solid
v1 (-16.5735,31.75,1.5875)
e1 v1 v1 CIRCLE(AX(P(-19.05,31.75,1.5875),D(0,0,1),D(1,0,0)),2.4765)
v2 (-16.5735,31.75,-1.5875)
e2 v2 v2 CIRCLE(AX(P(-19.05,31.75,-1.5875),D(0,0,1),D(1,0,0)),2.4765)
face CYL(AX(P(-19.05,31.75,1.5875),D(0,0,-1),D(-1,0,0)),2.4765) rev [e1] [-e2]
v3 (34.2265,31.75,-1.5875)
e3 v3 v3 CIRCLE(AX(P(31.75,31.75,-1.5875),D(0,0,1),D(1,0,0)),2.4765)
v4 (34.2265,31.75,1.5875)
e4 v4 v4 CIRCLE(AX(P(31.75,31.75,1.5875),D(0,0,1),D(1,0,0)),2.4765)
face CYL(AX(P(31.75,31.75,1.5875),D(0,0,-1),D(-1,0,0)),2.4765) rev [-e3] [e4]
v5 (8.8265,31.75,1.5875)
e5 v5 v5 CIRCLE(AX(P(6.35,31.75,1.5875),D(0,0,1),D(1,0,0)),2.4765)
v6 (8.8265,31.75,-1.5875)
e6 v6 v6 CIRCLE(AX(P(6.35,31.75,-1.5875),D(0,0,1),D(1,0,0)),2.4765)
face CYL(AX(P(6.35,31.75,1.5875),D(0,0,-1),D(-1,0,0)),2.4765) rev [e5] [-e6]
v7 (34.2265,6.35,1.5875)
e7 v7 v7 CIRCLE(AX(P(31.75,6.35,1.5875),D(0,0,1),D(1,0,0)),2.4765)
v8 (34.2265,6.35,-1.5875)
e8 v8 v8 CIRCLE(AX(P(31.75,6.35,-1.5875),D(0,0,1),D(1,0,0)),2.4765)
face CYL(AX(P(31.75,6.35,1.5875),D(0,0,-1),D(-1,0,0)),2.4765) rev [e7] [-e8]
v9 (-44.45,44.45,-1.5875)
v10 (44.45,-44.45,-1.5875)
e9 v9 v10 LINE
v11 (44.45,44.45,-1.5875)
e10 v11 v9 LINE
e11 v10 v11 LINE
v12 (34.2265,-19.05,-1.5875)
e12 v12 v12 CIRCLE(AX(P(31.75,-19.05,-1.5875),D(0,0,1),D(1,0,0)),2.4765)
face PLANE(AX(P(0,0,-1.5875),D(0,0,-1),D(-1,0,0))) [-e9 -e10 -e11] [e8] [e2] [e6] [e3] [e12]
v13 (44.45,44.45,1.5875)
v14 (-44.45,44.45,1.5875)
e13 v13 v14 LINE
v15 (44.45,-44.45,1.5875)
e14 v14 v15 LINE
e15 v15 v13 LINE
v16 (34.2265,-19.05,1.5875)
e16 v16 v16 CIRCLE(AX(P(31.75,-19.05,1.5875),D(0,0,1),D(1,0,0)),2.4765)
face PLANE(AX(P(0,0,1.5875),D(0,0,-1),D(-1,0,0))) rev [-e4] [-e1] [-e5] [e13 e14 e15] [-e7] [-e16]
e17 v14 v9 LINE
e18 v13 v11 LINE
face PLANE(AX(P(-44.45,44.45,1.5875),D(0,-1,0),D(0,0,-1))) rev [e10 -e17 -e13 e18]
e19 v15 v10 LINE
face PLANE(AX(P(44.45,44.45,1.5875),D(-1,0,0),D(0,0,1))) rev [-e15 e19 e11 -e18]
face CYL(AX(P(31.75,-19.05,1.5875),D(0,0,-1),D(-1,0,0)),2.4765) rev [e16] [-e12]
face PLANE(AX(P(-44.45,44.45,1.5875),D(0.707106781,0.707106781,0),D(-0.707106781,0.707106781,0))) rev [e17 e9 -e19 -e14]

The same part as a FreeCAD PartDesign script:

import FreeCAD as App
import Part
import Sketcher
Q = App.Units.Quantity


def add_polygon(sketch, points):
    """Adds a closed chain of lines whose ends are joined by coincident constraints."""
    first, n = sketch.GeometryCount, len(points)
    for a, b in zip(points, points[1:] + points[:1]):
        sketch.addGeometry(Part.LineSegment(App.Vector(*a, 0), App.Vector(*b, 0)), False)
    for i in range(n):
        sketch.addConstraint(Sketcher.Constraint("Coincident", first + i, 2, first + (i + 1) % n, 1))

doc = App.newDocument("Part")
params = doc.addObject("Spreadsheet::Sheet", "Params")
for row, (alias, value) in enumerate([
    ("sketch1_diameter", "0.195 in"),
    ("sketch1_width", "3.5 in"),
    ("pad1_length", "0.125 in"),
], start=1):
    params.set(f"A{row}", alias)
    params.set(f"B{row}", "=" + value)
    params.setAlias(f"B{row}", alias)

body = doc.addObject("PartDesign::Body", "Body")

sketch1 = body.newObject("Sketcher::SketchObject", "Sketch")
sketch1.AttachmentSupport = (doc.getObject("XY_Plane"), [""])
sketch1.MapMode = "FlatFace"
add_polygon(sketch1, [(44.5, 44.5), (-44.5, 44.5), (44.5, -44.5)])
sketch1.addGeometry(Part.Circle(App.Vector(31.8, -19.1, 0), App.Vector(0, 0, 1), 2.5), False)
sketch1.addGeometry(Part.Circle(App.Vector(31.8, 6.3, 0), App.Vector(0, 0, 1), 2.5), False)
sketch1.addGeometry(Part.Circle(App.Vector(31.8, 31.8, 0), App.Vector(0, 0, 1), 2.5), False)
sketch1.addGeometry(Part.Circle(App.Vector(6.3, 31.8, 0), App.Vector(0, 0, 1), 2.5), False)
sketch1.addGeometry(Part.Circle(App.Vector(-19.1, 31.8, 0), App.Vector(0, 0, 1), 2.5), False)
sketch1.addConstraint([
    Sketcher.Constraint("Horizontal", 0),
    Sketcher.Constraint("Vertical", 2),
    Sketcher.Constraint("Equal", 3, 4),
    Sketcher.Constraint("Equal", 4, 5),
    Sketcher.Constraint("Equal", 5, 6),
    Sketcher.Constraint("Equal", 6, 7),
    Sketcher.Constraint("Symmetric", 0, 2, 1, 2, -1, 1),
    Sketcher.Constraint("Horizontal", 5, 3, 6, 3),
    Sketcher.Constraint("Horizontal", 6, 3, 7, 3),
    Sketcher.Constraint("Vertical", 3, 3, 4, 3),
    Sketcher.Constraint("Vertical", 4, 3, 5, 3),
    Sketcher.Constraint("Equal", 0, 2),
    Sketcher.Constraint("Diameter", 3, Q("0.195 in")),
    Sketcher.Constraint("DistanceX", 0, 2, 0, 1, Q("3.5 in")),
    Sketcher.Constraint("DistanceY", 3, 3, 4, 3, Q("1 in")),
    Sketcher.Constraint("DistanceY", 4, 3, 5, 3, Q("1 in")),
    Sketcher.Constraint("DistanceX", 6, 3, 5, 3, Q("1 in")),
    Sketcher.Constraint("DistanceX", 7, 3, 6, 3, Q("1 in")),
    Sketcher.Constraint("DistanceX", 0, 2, 7, 3, Q("1 in")),
    Sketcher.Constraint("DistanceY", 1, 2, 3, 3, Q("1 in")),
])
sketch1.setExpression("Constraints[15]", "Params.sketch1_diameter")
sketch1.setExpression("Constraints[16]", "Params.sketch1_width")
pad1 = body.newObject("PartDesign::Pad", "Pad")
pad1.Profile = sketch1
pad1.setExpression("Length", "Params.pad1_length")
pad1.Midplane = True

doc.recompute()
